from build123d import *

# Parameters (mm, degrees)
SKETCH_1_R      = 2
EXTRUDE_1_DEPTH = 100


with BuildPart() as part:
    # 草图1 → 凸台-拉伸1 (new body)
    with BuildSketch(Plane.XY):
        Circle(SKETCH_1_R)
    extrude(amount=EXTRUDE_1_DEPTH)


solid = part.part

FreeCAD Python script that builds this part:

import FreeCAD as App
import Part
import Sketcher
from FreeCAD import Vector
Q = App.Units.Quantity

doc = App.newDocument("Part")
params = doc.addObject("Spreadsheet::Sheet", "Params")
for row, (alias, value) in enumerate([
    ("sketch1_diameter", "4 mm"),
    ("pad1_length", "100 mm"),
], start=1):
    params.set(f"A{row}", alias)
    params.set(f"B{row}", "=" + value)
    params.setAlias(f"B{row}", alias)

body = doc.addObject("PartDesign::Body", "Body")

# Sketch on XY plane
sketch1 = doc.addObject("Sketcher::SketchObject", "Sketch")
body.addObject(sketch1)
sketch1.AttachmentSupport = (doc.XY_Plane, [""])
sketch1.MapMode = "FlatFace"
sketch1.addGeometry(Part.Circle(Vector(0, 0, 0), Vector(0, 0, 1), 2), False)
sketch1.addConstraint([
    Sketcher.Constraint("Coincident", 0, 3, -1, 1),
    Sketcher.Constraint("Diameter", 0, Q("4 mm")),
])
sketch1.setExpression("Constraints[1]", "Params.sketch1_diameter")
pad1 = doc.addObject("PartDesign::Pad", "Pad")
body.addObject(pad1)
pad1.Profile = sketch1
pad1.setExpression("Length", "Params.pad1_length")

doc.recompute()
